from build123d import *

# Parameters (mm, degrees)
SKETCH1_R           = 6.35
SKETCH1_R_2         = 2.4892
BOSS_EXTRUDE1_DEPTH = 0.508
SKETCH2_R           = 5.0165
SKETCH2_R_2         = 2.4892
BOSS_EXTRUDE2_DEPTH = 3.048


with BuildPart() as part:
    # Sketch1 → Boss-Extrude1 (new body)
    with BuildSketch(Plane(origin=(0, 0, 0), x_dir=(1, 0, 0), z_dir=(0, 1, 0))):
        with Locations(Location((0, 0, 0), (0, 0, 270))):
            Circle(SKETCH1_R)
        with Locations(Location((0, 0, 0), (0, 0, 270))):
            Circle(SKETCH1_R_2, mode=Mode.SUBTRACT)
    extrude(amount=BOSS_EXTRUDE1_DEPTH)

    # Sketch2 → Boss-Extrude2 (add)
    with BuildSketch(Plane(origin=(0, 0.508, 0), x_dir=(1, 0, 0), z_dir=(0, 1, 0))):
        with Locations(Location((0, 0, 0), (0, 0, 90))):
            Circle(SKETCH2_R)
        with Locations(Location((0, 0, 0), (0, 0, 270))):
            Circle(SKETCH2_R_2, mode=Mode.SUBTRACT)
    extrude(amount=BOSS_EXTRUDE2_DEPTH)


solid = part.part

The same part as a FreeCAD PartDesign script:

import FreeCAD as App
import Part
import Sketcher
from FreeCAD import Vector
Q = App.Units.Quantity

doc = App.newDocument("Part")
body = doc.addObject("PartDesign::Body", "Body")

# Sketch on XZ plane
sketch1 = body.newObject("Sketcher::SketchObject", "Sketch")
sketch1.AttachmentSupport = (doc.getObject("XZ_Plane"), [""])
sketch1.MapMode = "FlatFace"
sketch1.addGeometry([
    Part.Circle(Vector(0, 0, 0), Vector(0, 0, 1), 6.3),
    Part.Circle(Vector(0, 0, 0), Vector(0, 0, 1), 2.5),
], False)
sketch1.addConstraint([
    Sketcher.Constraint("Coincident", 0, 3, -1, 1),
    Sketcher.Constraint("Coincident", 1, 3, -1, 1),
    Sketcher.Constraint("Diameter", 0, Q("0.5 in")),
    Sketcher.Constraint("Diameter", 1, Q("0.196 in")),
])
pad1 = body.newObject("PartDesign::Pad", "Pad")
pad1.Profile = sketch1
pad1.Length = Q("0.02 in")
pad1.Reversed = True

# Sketch on XZ plane
sketch2 = body.newObject("Sketcher::SketchObject", "Sketch001")
sketch2.AttachmentSupport = (doc.getObject("XZ_Plane"), [""])
sketch2.MapMode = "FlatFace"
sketch2.AttachmentOffset = App.Placement(Vector(0, 0, -0.02 * 25.4), App.Rotation())
sketch2.addGeometry([
    Part.Circle(Vector(0, 0, 0), Vector(0, 0, 1), 5),
    Part.Circle(Vector(0, 0, 0), Vector(0, 0, 1), 2.5),
], False)
sketch2.addConstraint([
    Sketcher.Constraint("Coincident", 0, 3, -1, 1),
    Sketcher.Constraint("Coincident", 1, 3, -1, 1),
    Sketcher.Constraint("Diameter", 0, Q("0.395 in")),
    Sketcher.Constraint("Diameter", 1, Q("0.196 in")),
])
pad2 = body.newObject("PartDesign::Pad", "Pad001")
pad2.Profile = sketch2
pad2.Length = Q("0.12 in")
pad2.Reversed = True

doc.recompute()
